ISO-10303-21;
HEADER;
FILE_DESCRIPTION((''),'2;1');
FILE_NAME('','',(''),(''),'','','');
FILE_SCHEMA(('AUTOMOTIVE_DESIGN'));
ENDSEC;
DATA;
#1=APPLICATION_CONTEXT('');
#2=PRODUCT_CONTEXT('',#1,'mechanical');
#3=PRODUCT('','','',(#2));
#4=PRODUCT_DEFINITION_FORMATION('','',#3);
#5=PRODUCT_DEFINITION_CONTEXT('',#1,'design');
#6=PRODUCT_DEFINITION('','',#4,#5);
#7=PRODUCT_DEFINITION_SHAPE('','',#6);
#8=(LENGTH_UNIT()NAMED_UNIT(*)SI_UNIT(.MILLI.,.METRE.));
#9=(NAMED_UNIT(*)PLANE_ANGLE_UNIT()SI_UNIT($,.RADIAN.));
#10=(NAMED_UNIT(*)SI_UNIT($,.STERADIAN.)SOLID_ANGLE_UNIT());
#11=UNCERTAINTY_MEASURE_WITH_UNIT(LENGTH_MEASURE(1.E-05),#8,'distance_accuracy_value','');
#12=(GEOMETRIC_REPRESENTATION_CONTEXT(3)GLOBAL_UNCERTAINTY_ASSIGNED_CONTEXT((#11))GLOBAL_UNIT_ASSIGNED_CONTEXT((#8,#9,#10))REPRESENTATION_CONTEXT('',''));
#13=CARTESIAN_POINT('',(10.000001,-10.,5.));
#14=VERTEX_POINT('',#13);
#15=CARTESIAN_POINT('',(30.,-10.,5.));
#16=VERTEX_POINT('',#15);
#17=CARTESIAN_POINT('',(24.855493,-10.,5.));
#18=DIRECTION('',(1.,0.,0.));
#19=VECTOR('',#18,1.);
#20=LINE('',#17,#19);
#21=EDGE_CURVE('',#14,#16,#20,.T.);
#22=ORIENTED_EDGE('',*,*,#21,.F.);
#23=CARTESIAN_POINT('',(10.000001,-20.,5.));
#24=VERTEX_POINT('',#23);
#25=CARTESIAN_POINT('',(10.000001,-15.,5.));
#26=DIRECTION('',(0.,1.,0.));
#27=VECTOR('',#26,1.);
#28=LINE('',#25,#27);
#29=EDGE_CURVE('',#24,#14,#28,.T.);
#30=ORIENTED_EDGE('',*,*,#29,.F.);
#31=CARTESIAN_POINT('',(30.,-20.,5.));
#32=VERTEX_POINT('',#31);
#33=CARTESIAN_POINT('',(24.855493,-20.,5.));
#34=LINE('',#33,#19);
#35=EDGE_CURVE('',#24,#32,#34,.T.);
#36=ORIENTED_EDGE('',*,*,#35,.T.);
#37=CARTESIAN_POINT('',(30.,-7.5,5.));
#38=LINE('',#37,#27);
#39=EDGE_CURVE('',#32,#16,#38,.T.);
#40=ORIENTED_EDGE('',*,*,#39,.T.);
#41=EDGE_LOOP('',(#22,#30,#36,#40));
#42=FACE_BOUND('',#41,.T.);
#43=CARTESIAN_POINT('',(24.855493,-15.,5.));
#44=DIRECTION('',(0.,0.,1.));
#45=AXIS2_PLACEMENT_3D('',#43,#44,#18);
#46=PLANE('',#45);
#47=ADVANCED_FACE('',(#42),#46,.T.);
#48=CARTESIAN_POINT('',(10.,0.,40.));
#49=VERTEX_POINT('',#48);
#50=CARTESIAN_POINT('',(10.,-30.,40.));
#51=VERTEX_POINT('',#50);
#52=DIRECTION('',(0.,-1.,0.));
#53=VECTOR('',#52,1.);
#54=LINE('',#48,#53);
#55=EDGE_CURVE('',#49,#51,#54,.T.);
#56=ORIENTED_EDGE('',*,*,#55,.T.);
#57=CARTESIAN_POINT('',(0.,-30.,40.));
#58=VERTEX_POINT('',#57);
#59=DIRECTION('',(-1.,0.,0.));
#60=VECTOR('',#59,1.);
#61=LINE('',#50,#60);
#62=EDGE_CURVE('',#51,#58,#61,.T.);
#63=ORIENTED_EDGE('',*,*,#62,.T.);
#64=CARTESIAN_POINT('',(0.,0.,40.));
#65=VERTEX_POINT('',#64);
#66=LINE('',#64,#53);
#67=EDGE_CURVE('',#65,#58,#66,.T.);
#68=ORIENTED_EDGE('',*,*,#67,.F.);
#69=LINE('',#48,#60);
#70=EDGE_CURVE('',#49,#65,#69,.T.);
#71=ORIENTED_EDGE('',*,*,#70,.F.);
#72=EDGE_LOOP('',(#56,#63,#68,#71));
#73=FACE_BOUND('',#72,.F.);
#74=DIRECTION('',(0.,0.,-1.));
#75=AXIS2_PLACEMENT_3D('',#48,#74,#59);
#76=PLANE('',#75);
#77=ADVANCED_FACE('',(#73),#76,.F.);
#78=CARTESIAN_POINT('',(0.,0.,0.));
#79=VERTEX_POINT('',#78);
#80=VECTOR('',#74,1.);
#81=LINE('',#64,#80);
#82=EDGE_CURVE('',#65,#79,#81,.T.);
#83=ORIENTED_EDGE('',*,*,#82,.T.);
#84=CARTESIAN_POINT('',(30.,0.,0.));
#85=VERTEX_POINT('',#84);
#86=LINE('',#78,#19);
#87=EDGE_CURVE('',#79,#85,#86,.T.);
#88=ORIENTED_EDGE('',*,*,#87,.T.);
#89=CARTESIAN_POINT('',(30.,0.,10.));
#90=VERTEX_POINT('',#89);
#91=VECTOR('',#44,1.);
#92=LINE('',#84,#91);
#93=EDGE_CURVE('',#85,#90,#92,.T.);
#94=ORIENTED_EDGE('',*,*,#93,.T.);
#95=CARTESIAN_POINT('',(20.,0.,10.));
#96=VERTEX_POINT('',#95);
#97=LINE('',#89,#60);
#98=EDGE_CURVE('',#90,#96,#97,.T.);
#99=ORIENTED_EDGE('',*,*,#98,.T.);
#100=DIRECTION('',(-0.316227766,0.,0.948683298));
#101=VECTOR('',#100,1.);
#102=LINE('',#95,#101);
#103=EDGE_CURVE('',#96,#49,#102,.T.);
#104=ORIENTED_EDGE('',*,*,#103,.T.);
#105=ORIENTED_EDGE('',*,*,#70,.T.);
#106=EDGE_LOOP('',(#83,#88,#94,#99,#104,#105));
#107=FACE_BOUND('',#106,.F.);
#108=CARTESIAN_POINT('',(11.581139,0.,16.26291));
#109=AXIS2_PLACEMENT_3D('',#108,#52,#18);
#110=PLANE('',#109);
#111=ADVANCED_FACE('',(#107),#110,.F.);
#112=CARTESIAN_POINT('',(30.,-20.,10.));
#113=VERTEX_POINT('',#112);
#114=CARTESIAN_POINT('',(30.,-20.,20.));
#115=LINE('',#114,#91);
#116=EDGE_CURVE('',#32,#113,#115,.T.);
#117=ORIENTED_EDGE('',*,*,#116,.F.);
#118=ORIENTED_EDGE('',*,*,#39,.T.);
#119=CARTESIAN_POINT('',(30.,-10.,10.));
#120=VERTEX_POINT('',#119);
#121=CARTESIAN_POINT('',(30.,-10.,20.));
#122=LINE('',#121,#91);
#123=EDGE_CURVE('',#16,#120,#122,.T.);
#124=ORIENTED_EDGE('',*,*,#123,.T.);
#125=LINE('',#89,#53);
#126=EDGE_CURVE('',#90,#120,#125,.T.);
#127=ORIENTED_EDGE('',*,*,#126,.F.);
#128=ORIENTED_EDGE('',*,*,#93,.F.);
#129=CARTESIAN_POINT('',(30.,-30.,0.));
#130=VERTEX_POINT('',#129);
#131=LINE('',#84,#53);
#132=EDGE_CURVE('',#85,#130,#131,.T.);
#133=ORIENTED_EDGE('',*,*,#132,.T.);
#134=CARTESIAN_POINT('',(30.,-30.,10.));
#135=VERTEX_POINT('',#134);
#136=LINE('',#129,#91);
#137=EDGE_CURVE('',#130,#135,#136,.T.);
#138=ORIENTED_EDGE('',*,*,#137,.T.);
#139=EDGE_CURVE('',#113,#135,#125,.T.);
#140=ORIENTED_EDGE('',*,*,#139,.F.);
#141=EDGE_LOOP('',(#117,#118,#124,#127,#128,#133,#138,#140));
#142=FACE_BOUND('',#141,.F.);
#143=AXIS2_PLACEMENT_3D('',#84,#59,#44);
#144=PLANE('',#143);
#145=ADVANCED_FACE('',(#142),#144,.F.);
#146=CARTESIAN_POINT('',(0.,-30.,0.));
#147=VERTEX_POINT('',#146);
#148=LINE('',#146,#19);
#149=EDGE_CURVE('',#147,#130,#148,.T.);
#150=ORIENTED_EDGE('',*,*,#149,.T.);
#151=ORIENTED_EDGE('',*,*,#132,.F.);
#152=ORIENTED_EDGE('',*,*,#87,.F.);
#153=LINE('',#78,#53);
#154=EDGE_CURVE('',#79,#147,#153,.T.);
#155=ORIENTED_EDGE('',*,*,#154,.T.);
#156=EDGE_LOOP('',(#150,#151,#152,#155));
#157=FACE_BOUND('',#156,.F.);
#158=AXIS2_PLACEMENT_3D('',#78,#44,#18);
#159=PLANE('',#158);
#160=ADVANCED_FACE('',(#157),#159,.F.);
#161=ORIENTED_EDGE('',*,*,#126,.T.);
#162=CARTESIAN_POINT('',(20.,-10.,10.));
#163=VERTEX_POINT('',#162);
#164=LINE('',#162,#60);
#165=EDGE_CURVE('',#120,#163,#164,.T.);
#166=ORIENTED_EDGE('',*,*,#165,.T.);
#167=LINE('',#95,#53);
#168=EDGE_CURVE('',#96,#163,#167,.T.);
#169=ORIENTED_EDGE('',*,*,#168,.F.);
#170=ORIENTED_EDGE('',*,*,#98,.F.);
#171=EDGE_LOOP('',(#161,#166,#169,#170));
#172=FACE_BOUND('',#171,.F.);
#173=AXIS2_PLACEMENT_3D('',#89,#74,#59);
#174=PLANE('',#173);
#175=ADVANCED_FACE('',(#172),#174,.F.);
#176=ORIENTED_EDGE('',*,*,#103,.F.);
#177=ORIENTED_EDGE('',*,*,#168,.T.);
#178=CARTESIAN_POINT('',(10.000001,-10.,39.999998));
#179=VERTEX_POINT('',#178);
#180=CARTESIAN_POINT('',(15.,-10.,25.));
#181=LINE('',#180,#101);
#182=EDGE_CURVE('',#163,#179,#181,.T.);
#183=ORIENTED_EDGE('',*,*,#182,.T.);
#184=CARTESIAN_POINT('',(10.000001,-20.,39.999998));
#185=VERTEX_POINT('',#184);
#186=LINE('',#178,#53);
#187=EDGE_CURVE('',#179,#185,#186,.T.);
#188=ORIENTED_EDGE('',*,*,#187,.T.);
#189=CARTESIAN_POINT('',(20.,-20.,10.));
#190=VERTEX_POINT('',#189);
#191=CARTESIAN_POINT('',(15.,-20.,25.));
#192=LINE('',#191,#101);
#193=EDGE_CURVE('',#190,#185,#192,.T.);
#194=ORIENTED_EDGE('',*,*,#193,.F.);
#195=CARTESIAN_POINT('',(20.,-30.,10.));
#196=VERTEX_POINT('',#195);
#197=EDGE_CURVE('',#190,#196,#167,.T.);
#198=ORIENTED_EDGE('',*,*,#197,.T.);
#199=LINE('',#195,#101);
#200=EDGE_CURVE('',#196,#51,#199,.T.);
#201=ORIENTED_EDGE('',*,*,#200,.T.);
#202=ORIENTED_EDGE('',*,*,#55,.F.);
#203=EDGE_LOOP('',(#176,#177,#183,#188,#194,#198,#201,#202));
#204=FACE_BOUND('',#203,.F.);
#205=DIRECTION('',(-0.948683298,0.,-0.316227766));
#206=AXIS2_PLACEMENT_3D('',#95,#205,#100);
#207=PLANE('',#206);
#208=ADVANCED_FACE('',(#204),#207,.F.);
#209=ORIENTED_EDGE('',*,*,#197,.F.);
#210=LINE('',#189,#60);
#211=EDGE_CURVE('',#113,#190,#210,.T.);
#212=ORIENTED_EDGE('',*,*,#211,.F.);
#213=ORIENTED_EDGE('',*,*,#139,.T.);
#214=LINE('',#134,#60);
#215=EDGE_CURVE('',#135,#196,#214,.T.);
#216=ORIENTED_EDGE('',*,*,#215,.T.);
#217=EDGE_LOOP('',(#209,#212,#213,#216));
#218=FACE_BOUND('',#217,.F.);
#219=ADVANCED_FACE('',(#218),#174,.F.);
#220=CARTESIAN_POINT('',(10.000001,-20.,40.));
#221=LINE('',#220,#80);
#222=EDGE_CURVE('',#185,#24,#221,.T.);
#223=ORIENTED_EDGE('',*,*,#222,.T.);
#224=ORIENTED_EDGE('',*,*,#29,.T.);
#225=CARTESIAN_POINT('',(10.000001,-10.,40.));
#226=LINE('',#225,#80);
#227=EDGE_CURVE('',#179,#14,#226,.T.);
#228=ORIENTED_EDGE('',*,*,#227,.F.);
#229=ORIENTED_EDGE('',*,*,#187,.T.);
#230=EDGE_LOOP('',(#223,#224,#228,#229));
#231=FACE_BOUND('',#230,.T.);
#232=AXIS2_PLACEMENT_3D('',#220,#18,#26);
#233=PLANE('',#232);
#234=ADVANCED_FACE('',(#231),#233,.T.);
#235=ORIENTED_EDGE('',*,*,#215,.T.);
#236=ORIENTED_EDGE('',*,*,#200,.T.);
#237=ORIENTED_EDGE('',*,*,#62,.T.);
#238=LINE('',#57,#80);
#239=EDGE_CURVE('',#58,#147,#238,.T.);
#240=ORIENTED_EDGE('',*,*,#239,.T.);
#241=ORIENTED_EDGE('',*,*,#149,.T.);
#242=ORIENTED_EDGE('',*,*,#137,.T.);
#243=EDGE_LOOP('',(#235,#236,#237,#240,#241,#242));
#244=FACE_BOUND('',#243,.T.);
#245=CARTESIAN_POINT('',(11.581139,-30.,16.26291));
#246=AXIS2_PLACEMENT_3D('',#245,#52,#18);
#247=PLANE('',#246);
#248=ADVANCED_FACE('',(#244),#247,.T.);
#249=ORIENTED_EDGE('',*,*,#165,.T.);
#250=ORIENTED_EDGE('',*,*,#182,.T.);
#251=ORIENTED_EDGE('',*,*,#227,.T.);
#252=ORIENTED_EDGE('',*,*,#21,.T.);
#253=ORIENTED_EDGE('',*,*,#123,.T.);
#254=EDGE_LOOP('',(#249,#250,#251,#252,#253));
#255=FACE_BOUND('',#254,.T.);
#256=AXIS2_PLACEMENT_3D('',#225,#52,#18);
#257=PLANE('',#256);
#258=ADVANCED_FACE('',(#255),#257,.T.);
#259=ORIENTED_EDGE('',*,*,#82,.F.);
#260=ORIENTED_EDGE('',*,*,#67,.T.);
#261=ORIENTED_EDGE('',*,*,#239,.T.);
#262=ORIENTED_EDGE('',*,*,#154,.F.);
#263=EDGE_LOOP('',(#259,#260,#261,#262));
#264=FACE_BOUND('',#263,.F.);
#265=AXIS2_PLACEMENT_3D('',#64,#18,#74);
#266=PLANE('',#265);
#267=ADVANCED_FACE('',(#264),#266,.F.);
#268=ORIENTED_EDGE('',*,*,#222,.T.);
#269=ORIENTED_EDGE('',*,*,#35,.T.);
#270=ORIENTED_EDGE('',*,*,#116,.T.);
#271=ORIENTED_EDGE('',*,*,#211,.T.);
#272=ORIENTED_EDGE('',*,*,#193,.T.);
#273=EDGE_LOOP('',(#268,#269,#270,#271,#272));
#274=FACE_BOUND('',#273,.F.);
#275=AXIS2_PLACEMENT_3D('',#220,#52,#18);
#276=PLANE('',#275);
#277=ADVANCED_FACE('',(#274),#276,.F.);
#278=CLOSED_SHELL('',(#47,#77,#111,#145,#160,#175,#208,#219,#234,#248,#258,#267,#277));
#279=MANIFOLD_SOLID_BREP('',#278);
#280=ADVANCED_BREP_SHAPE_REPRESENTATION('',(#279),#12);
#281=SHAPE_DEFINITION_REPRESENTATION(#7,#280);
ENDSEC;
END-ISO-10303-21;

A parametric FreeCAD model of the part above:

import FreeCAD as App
import Part
import Sketcher

V = App.Vector


def add_polygon(sketch, points):
    """Adds a closed chain of lines whose ends are joined by coincident constraints."""
    first, n = sketch.GeometryCount, len(points)
    for a, b in zip(points, points[1:] + points[:1]):
        sketch.addGeometry(Part.LineSegment(App.Vector(*a, 0), App.Vector(*b, 0)), False)
    for i in range(n):
        sketch.addConstraint(Sketcher.Constraint("Coincident", first + i, 2, first + (i + 1) % n, 1))

doc = App.newDocument("Part")
params = doc.addObject("Spreadsheet::Sheet", "Params")
for row, (alias, value) in enumerate([
    ("sketch1_width", "30 mm"),
    ("sketch1_width2", "10 mm"),
    ("sketch1_height", "40 mm"),
    ("pad1_length", "30 mm"),
    ("sketch2_height", "10 mm"),
    ("pocket1_length", "35 mm"),
], start=1):
    params.set(f"A{row}", alias)
    params.set(f"B{row}", "=" + value)
    params.setAlias(f"B{row}", alias)

body = doc.addObject("PartDesign::Body", "Body")

sketch1 = body.newObject("Sketcher::SketchObject", "Sketch")
sketch1.AttachmentSupport = (doc.getObject("XZ_Plane"), [""])
sketch1.MapMode = "FlatFace"
add_polygon(sketch1, [(0, 40), (0, 0), (30, 0), (30, 10), (20, 10), (10, 40)])
sketch1.addConstraint(Sketcher.Constraint("Vertical", 0))
sketch1.addConstraint(Sketcher.Constraint("Horizontal", 1))
sketch1.addConstraint(Sketcher.Constraint("Vertical", 2))
sketch1.addConstraint(Sketcher.Constraint("Horizontal", 3))
sketch1.addConstraint(Sketcher.Constraint("Horizontal", 5))
sketch1.addConstraint(Sketcher.Constraint("Coincident", 0, 2, -1, 1))
sketch1.addConstraint(Sketcher.Constraint("Equal", 3, 5))
sketch1.addConstraint(Sketcher.Constraint("Equal", 5, 2))
sketch1.addConstraint(Sketcher.Constraint("DistanceX", 1, 1, 1, 2, 30.0))
sketch1.addConstraint(Sketcher.Constraint("DistanceX", 3, 2, 3, 1, 10.0))
sketch1.addConstraint(Sketcher.Constraint("DistanceY", 0, 2, 0, 1, 40.0))
sketch1.setExpression("Constraints[14]", "Params.sketch1_width")
sketch1.setExpression("Constraints[15]", "Params.sketch1_width2")
sketch1.setExpression("Constraints[16]", "Params.sketch1_height")
pad1 = body.newObject("PartDesign::Pad", "Pad")
pad1.Profile = sketch1
pad1.setExpression("Length", "Params.pad1_length")

sketch2 = body.newObject("Sketcher::SketchObject", "Sketch001")
sketch2.AttachmentSupport = (doc.getObject("XY_Plane"), [""])
sketch2.MapMode = "FlatFace"
sketch2.AttachmentOffset = App.Placement(V(0, 0, 40), App.Rotation())
add_polygon(sketch2, [(10, -10), (10, -20), (40, -20), (40, -10)])
sketch2.addConstraint(Sketcher.Constraint("Vertical", 0))
sketch2.addConstraint(Sketcher.Constraint("Horizontal", 1))
sketch2.addConstraint(Sketcher.Constraint("Vertical", 2))
sketch2.addConstraint(Sketcher.Constraint("Horizontal", 3))
sketch2.addConstraint(Sketcher.Constraint("DistanceY", 0, 2, 0, 1, 10.0))
sketch2.addConstraint(Sketcher.Constraint("DistanceX", -1, 1, 0, 2, 10.000001))
sketch2.addConstraint(Sketcher.Constraint("DistanceY", 0, 2, -1, 1, 20.0))
sketch2.addConstraint(Sketcher.Constraint("DistanceX", 1, 1, 1, 2, 29.710985))
sketch2.setExpression("Constraints[8]", "Params.sketch2_height")
pocket1 = body.newObject("PartDesign::Pocket", "Pocket")
pocket1.Profile = sketch2
pocket1.setExpression("Length", "Params.pocket1_length")

doc.recompute()
